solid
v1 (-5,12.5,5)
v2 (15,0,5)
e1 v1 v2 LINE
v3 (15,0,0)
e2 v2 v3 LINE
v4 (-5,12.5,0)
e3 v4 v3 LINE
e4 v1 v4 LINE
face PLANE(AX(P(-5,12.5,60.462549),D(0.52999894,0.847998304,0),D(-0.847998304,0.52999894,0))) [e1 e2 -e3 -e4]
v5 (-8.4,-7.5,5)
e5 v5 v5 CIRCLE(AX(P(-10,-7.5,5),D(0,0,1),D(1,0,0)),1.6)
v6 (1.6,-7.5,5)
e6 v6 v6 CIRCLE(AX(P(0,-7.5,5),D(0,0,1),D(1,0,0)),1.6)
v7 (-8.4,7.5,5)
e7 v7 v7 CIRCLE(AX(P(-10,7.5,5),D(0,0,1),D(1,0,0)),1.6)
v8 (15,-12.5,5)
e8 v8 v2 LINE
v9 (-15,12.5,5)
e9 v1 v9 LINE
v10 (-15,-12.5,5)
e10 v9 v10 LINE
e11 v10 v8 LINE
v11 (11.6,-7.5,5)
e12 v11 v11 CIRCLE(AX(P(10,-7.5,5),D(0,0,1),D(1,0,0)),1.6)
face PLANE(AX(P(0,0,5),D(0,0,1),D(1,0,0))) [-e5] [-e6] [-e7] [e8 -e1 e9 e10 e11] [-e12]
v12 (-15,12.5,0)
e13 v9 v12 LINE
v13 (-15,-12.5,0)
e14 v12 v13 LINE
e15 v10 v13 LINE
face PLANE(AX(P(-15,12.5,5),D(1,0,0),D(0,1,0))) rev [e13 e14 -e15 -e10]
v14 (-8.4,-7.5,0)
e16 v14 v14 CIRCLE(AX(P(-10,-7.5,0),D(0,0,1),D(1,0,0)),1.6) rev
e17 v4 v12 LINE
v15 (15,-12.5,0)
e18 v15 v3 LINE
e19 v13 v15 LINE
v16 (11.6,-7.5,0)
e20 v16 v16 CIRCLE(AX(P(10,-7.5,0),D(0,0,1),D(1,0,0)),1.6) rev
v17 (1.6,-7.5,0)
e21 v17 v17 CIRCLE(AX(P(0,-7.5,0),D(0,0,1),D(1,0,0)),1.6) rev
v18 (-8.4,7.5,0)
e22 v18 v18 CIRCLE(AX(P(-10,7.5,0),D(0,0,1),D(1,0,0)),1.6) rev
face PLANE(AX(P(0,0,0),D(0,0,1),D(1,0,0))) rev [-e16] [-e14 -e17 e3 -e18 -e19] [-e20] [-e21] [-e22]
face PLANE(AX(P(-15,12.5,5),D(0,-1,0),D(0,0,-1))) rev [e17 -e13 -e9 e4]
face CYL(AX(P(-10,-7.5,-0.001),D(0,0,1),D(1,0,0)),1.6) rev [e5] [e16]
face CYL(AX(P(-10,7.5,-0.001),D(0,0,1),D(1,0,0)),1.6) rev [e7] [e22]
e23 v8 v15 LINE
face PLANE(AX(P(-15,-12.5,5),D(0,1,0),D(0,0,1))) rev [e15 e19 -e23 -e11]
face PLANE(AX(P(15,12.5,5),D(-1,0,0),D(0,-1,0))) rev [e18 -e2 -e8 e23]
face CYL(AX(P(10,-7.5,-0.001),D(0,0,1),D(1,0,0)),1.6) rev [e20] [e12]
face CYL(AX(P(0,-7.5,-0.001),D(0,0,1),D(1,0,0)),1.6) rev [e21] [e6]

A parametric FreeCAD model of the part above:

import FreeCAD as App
import Part
import Sketcher
from FreeCAD import Vector
Q = App.Units.Quantity

doc = App.newDocument("Part")
body = doc.addObject("PartDesign::Body", "Body")

sketch1 = body.newObject("Sketcher::SketchObject", "Sketch")
sketch1.AttachmentSupport = (doc.getObject("XY_Plane"), [""])
sketch1.MapMode = "FlatFace"
sketch1.addGeometry(Part.LineSegment(Vector(-15, 12, 0), Vector(-15, -12, 0)), False)
sketch1.addGeometry(Part.LineSegment(Vector(-15, -12, 0), Vector(15, -12, 0)), False)
sketch1.addGeometry(Part.LineSegment(Vector(15, -12, 0), Vector(15, 12, 0)), False)
sketch1.addGeometry(Part.LineSegment(Vector(15, 12, 0), Vector(-15, 12, 0)), False)
sketch1.addConstraint(Sketcher.Constraint("Coincident", 0, 2, 1, 1))
sketch1.addConstraint(Sketcher.Constraint("Coincident", 1, 2, 2, 1))
sketch1.addConstraint(Sketcher.Constraint("Coincident", 2, 2, 3, 1))
sketch1.addConstraint(Sketcher.Constraint("Coincident", 3, 2, 0, 1))
sketch1.addConstraint(Sketcher.Constraint("Vertical", 0))
sketch1.addConstraint(Sketcher.Constraint("Horizontal", 1))
sketch1.addConstraint(Sketcher.Constraint("Vertical", 2))
sketch1.addConstraint(Sketcher.Constraint("Horizontal", 3))
sketch1.addConstraint(Sketcher.Constraint("Symmetric", 0, 2, 2, 2, -1, 1))
sketch1.addConstraint(Sketcher.Constraint("DistanceX", 1, 1, 1, 2, Q("30 mm")))
sketch1.addConstraint(Sketcher.Constraint("DistanceY", 0, 2, 0, 1, Q("25 mm")))
pad1 = body.newObject("PartDesign::Pad", "Pad")
pad1.Profile = sketch1
pad1.Length = 5

sketch2 = body.newObject("Sketcher::SketchObject", "Sketch001")
sketch2.AttachmentSupport = (doc.getObject("XY_Plane"), [""])
sketch2.MapMode = "FlatFace"
sketch2.AttachmentOffset = App.Placement(Vector(0, 0, 5), App.Rotation())
sketch2.addGeometry(Part.Circle(Vector(-10, -7.5, 0), Vector(0, 0, 1), 1.6), False)
sketch2.addConstraint(Sketcher.Constraint("Diameter", 0, Q("3.2 mm")))
sketch2.addConstraint(Sketcher.Constraint("DistanceX", 0, 3, -1, 1, Q("10 mm")))
sketch2.addConstraint(Sketcher.Constraint("DistanceY", 0, 3, -1, 1, Q("7.5 mm")))
pocket1 = body.newObject("PartDesign::Pocket", "Pocket")
pocket1.Profile = sketch2
pocket1.Type = "UpToFirst"

sketch3 = body.newObject("Sketcher::SketchObject", "Sketch002")
sketch3.AttachmentSupport = (doc.getObject("XY_Plane"), [""])
sketch3.MapMode = "FlatFace"
sketch3.AttachmentOffset = App.Placement(Vector(0, 0, 5), App.Rotation())
sketch3.addGeometry(Part.Circle(Vector(0, -7.5, 0), Vector(0, 0, 1), 1.6), False)
sketch3.addConstraint(Sketcher.Constraint("PointOnObject", 0, 3, -2))
sketch3.addConstraint(Sketcher.Constraint("Diameter", 0, Q("3.2 mm")))
sketch3.addConstraint(Sketcher.Constraint("DistanceY", 0, 3, -1, 1, Q("7.5 mm")))
pocket2 = body.newObject("PartDesign::Pocket", "Pocket001")
pocket2.Profile = sketch3
pocket2.Type = "UpToFirst"

sketch4 = body.newObject("Sketcher::SketchObject", "Sketch003")
sketch4.AttachmentSupport = (doc.getObject("XY_Plane"), [""])
sketch4.MapMode = "FlatFace"
sketch4.AttachmentOffset = App.Placement(Vector(0, 0, 5), App.Rotation())
sketch4.addGeometry(Part.Circle(Vector(10, -7.5, 0), Vector(0, 0, 1), 1.6), False)
sketch4.addConstraint(Sketcher.Constraint("Diameter", 0, Q("3.2 mm")))
sketch4.addConstraint(Sketcher.Constraint("DistanceX", -1, 1, 0, 3, Q("10 mm")))
sketch4.addConstraint(Sketcher.Constraint("DistanceY", 0, 3, -1, 1, Q("7.5 mm")))
pocket3 = body.newObject("PartDesign::Pocket", "Pocket002")
pocket3.Profile = sketch4
pocket3.Type = "UpToFirst"

sketch5 = body.newObject("Sketcher::SketchObject", "Sketch004")
sketch5.AttachmentSupport = (doc.getObject("XY_Plane"), [""])
sketch5.MapMode = "FlatFace"
sketch5.AttachmentOffset = App.Placement(Vector(0, 0, 5), App.Rotation())
sketch5.addGeometry(Part.Circle(Vector(-10, 7.5, 0), Vector(0, 0, 1), 1.6), False)
sketch5.addConstraint(Sketcher.Constraint("Diameter", 0, Q("3.2 mm")))
sketch5.addConstraint(Sketcher.Constraint("DistanceX", 0, 3, -1, 1, Q("10 mm")))
sketch5.addConstraint(Sketcher.Constraint("DistanceY", -1, 1, 0, 3, Q("7.5 mm")))
pocket4 = body.newObject("PartDesign::Pocket", "Pocket003")
pocket4.Profile = sketch5
pocket4.Type = "UpToFirst"

sketch6 = body.newObject("Sketcher::SketchObject", "Sketch005")
sketch6.AttachmentSupport = (doc.getObject("XY_Plane"), [""])
sketch6.MapMode = "FlatFace"
sketch6.AttachmentOffset = App.Placement(Vector(0, 0, 5), App.Rotation())
sketch6.addGeometry(Part.LineSegment(Vector(-69, 52, 0), Vector(79, -40, 0)), False)
sketch6.addGeometry(Part.LineSegment(Vector(79, -40, 0), Vector(158, 87, 0)), False)
sketch6.addGeometry(Part.LineSegment(Vector(158, 87, 0), Vector(11, 179, 0)), False)
sketch6.addGeometry(Part.LineSegment(Vector(11, 179, 0), Vector(-69, 52, 0)), False)
sketch6.addConstraint(Sketcher.Constraint("Coincident", 0, 2, 1, 1))
sketch6.addConstraint(Sketcher.Constraint("Coincident", 1, 2, 2, 1))
sketch6.addConstraint(Sketcher.Constraint("Coincident", 2, 2, 3, 1))
sketch6.addConstraint(Sketcher.Constraint("Coincident", 3, 2, 0, 1))
sketch6.addConstraint(Sketcher.Constraint("Perpendicular", 0, 1))
sketch6.addConstraint(Sketcher.Constraint("Perpendicular", 1, 2))
sketch6.addConstraint(Sketcher.Constraint("Perpendicular", 2, 3))
sketch6.addConstraint(Sketcher.Constraint("Distance", 1, Q("150 mm")))
sketch6.addConstraint(Sketcher.Constraint("DistanceY", 0, 2, -1, 1, Q("39.749921 mm")))
sketch6.addConstraint(Sketcher.Constraint("DistanceX", -1, 1, 2, 2, Q("10.899968 mm")))
sketch6.addConstraint(Sketcher.Constraint("DistanceY", -1, 1, 3, 2, Q("52.249921 mm")))
sketch6.addConstraint(Sketcher.Constraint("DistanceX", 0, 2, 1, 2, Q("79.499841 mm")))
pocket5 = body.newObject("PartDesign::Pocket", "Pocket004")
pocket5.Profile = sketch6
pocket5.Type = "ThroughAll"
pocket5.Midplane = True

doc.recompute()
